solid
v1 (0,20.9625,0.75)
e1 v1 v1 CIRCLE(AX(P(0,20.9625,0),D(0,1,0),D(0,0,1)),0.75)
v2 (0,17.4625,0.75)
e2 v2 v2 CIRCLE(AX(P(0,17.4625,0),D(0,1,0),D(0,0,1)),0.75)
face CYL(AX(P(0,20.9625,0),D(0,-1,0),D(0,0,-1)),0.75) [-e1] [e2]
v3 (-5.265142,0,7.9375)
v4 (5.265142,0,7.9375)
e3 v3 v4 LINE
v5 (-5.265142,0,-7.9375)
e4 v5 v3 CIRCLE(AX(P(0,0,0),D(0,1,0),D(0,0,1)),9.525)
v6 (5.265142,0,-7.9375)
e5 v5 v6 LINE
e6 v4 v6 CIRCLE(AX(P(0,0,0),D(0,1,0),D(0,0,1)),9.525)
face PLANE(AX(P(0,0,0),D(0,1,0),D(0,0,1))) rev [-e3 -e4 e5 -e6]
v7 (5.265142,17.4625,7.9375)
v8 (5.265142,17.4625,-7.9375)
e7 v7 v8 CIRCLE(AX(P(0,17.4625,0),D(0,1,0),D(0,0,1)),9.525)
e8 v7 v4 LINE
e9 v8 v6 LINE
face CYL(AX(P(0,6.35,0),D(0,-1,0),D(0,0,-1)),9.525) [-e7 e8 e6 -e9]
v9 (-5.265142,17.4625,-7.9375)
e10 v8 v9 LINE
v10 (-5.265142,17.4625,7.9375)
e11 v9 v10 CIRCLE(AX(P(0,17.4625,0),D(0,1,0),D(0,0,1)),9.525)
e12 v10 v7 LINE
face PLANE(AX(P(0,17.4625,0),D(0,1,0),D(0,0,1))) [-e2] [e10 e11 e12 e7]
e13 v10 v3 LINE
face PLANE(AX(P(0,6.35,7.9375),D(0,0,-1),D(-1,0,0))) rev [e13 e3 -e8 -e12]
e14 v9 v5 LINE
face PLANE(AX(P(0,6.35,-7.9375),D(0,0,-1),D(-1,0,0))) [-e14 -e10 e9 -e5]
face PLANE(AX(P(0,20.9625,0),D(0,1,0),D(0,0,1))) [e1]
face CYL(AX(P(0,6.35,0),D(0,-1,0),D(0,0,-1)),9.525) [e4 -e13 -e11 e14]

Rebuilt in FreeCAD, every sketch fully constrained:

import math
import FreeCAD as App
import Part
import Sketcher

V = App.Vector
Q = App.Units.Quantity

doc = App.newDocument("Part")
params = doc.addObject("Spreadsheet::Sheet", "Params")
for row, (alias, value) in enumerate([
    ("sketch1_radius", "0.375 in"),
    ("pad1_length", "0.25 in"),
    ("sketch2_radius", "0.375 in"),
    ("pad2_length", "0.4375 in"),
    ("pad3_length", "3.5 mm"),
], start=1):
    params.set(f"A{row}", alias)
    params.set(f"B{row}", "=" + value)
    params.setAlias(f"B{row}", alias)

body = doc.addObject("PartDesign::Body", "Body")

sketch1 = body.newObject("Sketcher::SketchObject", "Sketch")
sketch1.AttachmentSupport = (doc.getObject("XZ_Plane"), [""])
sketch1.MapMode = "FlatFace"
sketch1.addGeometry([
    Part.LineSegment(V(5, -8, 0), V(-5, -8, 0)),
    Part.ArcOfCircle(Part.Circle(V(0, 0, 0), V(0, 0, 1), 10), math.radians(-180), math.radians(-124)),
    Part.ArcOfCircle(Part.Circle(V(0, 0, 0), V(0, 0, 1), 10), math.radians(124), math.radians(180)),
    Part.LineSegment(V(-5, 8, 0), V(5, 8, 0)),
    Part.ArcOfCircle(Part.Circle(V(0, 0, 0), V(0, 0, 1), 10), math.radians(0), math.radians(56)),
    Part.ArcOfCircle(Part.Circle(V(0, 0, 0), V(0, 0, 1), 10), math.radians(-56), math.radians(0)),
], False)
sketch1.addConstraint([
    Sketcher.Constraint("Coincident", 0, 2, 1, 2),
    Sketcher.Constraint("Tangent", 1, 1, 2, 2),
    Sketcher.Constraint("Coincident", 2, 1, 3, 1),
    Sketcher.Constraint("Coincident", 3, 2, 4, 2),
    Sketcher.Constraint("Tangent", 4, 1, 5, 2),
    Sketcher.Constraint("Coincident", 5, 1, 0, 1),
    Sketcher.Constraint("Horizontal", 0),
    Sketcher.Constraint("Horizontal", 3),
    Sketcher.Constraint("Coincident", 1, 3, -1, 1),
    Sketcher.Constraint("Coincident", 4, 3, -1, 1),
    Sketcher.Constraint("Equal", 1, 2),
    Sketcher.Constraint("Equal", 2, 4),
    Sketcher.Constraint("Equal", 4, 5),
    Sketcher.Constraint("PointOnObject", 1, 1, -1),
    Sketcher.Constraint("PointOnObject", 4, 1, -1),
    Sketcher.Constraint("Vertical", 0, 2, 2, 1),
    Sketcher.Constraint("Radius", 1, Q("0.375 in")),
    Sketcher.Constraint("DistanceY", 0, 2, -1, 1, Q("0.3125 in")),
])
sketch1.setExpression("Constraints[16]", "Params.sketch1_radius")
pad1 = body.newObject("PartDesign::Pad", "Pad")
pad1.Profile = sketch1
pad1.setExpression("Length", "Params.pad1_length")
pad1.Reversed = True

sketch2 = body.newObject("Sketcher::SketchObject", "Sketch001")
sketch2.AttachmentSupport = (doc.getObject("XZ_Plane"), [""])
sketch2.MapMode = "FlatFace"
sketch2.AttachmentOffset = App.Placement(V(0, 0, -0.25 * 25.4), App.Rotation())
sketch2.addGeometry([
    Part.LineSegment(V(5, -8, 0), V(-5, -8, 0)),
    Part.ArcOfCircle(Part.Circle(V(0, 0, 0), V(0, 0, 1), 10), math.radians(124), math.radians(236)),
    Part.LineSegment(V(-5, 8, 0), V(5, 8, 0)),
    Part.ArcOfCircle(Part.Circle(V(0, 0, 0), V(0, 0, 1), 10), math.radians(-56), math.radians(56)),
], False)
sketch2.addConstraint([
    Sketcher.Constraint("Coincident", 0, 2, 1, 2),
    Sketcher.Constraint("Coincident", 1, 1, 2, 1),
    Sketcher.Constraint("Coincident", 2, 2, 3, 2),
    Sketcher.Constraint("Coincident", 3, 1, 0, 1),
    Sketcher.Constraint("Horizontal", 0),
    Sketcher.Constraint("Horizontal", 2),
    Sketcher.Constraint("Coincident", 1, 3, -1, 1),
    Sketcher.Constraint("Coincident", 3, 3, -1, 1),
    Sketcher.Constraint("Equal", 1, 3),
    Sketcher.Constraint("Vertical", 0, 2, 1, 1),
    Sketcher.Constraint("Radius", 1, Q("0.375 in")),
    Sketcher.Constraint("DistanceY", 0, 2, -1, 1, Q("0.3125 in")),
])
sketch2.setExpression("Constraints[10]", "Params.sketch2_radius")
pad2 = body.newObject("PartDesign::Pad", "Pad001")
pad2.Profile = sketch2
pad2.setExpression("Length", "Params.pad2_length")
pad2.Reversed = True

sketch3 = body.newObject("Sketcher::SketchObject", "Sketch002")
sketch3.AttachmentSupport = (doc.getObject("XZ_Plane"), [""])
sketch3.MapMode = "FlatFace"
sketch3.AttachmentOffset = App.Placement(V(0, 0, -0.6875 * 25.4), App.Rotation())
sketch3.addGeometry(Part.Circle(V(0, 0, 0), V(0, 0, 1), 0.8), False)
sketch3.addConstraint([
    Sketcher.Constraint("Coincident", 0, 3, -1, 1),
    Sketcher.Constraint("Diameter", 0, Q("1.5 mm")),
])
pad3 = body.newObject("PartDesign::Pad", "Pad002")
pad3.Profile = sketch3
pad3.setExpression("Length", "Params.pad3_length")
pad3.Reversed = True

doc.recompute()
